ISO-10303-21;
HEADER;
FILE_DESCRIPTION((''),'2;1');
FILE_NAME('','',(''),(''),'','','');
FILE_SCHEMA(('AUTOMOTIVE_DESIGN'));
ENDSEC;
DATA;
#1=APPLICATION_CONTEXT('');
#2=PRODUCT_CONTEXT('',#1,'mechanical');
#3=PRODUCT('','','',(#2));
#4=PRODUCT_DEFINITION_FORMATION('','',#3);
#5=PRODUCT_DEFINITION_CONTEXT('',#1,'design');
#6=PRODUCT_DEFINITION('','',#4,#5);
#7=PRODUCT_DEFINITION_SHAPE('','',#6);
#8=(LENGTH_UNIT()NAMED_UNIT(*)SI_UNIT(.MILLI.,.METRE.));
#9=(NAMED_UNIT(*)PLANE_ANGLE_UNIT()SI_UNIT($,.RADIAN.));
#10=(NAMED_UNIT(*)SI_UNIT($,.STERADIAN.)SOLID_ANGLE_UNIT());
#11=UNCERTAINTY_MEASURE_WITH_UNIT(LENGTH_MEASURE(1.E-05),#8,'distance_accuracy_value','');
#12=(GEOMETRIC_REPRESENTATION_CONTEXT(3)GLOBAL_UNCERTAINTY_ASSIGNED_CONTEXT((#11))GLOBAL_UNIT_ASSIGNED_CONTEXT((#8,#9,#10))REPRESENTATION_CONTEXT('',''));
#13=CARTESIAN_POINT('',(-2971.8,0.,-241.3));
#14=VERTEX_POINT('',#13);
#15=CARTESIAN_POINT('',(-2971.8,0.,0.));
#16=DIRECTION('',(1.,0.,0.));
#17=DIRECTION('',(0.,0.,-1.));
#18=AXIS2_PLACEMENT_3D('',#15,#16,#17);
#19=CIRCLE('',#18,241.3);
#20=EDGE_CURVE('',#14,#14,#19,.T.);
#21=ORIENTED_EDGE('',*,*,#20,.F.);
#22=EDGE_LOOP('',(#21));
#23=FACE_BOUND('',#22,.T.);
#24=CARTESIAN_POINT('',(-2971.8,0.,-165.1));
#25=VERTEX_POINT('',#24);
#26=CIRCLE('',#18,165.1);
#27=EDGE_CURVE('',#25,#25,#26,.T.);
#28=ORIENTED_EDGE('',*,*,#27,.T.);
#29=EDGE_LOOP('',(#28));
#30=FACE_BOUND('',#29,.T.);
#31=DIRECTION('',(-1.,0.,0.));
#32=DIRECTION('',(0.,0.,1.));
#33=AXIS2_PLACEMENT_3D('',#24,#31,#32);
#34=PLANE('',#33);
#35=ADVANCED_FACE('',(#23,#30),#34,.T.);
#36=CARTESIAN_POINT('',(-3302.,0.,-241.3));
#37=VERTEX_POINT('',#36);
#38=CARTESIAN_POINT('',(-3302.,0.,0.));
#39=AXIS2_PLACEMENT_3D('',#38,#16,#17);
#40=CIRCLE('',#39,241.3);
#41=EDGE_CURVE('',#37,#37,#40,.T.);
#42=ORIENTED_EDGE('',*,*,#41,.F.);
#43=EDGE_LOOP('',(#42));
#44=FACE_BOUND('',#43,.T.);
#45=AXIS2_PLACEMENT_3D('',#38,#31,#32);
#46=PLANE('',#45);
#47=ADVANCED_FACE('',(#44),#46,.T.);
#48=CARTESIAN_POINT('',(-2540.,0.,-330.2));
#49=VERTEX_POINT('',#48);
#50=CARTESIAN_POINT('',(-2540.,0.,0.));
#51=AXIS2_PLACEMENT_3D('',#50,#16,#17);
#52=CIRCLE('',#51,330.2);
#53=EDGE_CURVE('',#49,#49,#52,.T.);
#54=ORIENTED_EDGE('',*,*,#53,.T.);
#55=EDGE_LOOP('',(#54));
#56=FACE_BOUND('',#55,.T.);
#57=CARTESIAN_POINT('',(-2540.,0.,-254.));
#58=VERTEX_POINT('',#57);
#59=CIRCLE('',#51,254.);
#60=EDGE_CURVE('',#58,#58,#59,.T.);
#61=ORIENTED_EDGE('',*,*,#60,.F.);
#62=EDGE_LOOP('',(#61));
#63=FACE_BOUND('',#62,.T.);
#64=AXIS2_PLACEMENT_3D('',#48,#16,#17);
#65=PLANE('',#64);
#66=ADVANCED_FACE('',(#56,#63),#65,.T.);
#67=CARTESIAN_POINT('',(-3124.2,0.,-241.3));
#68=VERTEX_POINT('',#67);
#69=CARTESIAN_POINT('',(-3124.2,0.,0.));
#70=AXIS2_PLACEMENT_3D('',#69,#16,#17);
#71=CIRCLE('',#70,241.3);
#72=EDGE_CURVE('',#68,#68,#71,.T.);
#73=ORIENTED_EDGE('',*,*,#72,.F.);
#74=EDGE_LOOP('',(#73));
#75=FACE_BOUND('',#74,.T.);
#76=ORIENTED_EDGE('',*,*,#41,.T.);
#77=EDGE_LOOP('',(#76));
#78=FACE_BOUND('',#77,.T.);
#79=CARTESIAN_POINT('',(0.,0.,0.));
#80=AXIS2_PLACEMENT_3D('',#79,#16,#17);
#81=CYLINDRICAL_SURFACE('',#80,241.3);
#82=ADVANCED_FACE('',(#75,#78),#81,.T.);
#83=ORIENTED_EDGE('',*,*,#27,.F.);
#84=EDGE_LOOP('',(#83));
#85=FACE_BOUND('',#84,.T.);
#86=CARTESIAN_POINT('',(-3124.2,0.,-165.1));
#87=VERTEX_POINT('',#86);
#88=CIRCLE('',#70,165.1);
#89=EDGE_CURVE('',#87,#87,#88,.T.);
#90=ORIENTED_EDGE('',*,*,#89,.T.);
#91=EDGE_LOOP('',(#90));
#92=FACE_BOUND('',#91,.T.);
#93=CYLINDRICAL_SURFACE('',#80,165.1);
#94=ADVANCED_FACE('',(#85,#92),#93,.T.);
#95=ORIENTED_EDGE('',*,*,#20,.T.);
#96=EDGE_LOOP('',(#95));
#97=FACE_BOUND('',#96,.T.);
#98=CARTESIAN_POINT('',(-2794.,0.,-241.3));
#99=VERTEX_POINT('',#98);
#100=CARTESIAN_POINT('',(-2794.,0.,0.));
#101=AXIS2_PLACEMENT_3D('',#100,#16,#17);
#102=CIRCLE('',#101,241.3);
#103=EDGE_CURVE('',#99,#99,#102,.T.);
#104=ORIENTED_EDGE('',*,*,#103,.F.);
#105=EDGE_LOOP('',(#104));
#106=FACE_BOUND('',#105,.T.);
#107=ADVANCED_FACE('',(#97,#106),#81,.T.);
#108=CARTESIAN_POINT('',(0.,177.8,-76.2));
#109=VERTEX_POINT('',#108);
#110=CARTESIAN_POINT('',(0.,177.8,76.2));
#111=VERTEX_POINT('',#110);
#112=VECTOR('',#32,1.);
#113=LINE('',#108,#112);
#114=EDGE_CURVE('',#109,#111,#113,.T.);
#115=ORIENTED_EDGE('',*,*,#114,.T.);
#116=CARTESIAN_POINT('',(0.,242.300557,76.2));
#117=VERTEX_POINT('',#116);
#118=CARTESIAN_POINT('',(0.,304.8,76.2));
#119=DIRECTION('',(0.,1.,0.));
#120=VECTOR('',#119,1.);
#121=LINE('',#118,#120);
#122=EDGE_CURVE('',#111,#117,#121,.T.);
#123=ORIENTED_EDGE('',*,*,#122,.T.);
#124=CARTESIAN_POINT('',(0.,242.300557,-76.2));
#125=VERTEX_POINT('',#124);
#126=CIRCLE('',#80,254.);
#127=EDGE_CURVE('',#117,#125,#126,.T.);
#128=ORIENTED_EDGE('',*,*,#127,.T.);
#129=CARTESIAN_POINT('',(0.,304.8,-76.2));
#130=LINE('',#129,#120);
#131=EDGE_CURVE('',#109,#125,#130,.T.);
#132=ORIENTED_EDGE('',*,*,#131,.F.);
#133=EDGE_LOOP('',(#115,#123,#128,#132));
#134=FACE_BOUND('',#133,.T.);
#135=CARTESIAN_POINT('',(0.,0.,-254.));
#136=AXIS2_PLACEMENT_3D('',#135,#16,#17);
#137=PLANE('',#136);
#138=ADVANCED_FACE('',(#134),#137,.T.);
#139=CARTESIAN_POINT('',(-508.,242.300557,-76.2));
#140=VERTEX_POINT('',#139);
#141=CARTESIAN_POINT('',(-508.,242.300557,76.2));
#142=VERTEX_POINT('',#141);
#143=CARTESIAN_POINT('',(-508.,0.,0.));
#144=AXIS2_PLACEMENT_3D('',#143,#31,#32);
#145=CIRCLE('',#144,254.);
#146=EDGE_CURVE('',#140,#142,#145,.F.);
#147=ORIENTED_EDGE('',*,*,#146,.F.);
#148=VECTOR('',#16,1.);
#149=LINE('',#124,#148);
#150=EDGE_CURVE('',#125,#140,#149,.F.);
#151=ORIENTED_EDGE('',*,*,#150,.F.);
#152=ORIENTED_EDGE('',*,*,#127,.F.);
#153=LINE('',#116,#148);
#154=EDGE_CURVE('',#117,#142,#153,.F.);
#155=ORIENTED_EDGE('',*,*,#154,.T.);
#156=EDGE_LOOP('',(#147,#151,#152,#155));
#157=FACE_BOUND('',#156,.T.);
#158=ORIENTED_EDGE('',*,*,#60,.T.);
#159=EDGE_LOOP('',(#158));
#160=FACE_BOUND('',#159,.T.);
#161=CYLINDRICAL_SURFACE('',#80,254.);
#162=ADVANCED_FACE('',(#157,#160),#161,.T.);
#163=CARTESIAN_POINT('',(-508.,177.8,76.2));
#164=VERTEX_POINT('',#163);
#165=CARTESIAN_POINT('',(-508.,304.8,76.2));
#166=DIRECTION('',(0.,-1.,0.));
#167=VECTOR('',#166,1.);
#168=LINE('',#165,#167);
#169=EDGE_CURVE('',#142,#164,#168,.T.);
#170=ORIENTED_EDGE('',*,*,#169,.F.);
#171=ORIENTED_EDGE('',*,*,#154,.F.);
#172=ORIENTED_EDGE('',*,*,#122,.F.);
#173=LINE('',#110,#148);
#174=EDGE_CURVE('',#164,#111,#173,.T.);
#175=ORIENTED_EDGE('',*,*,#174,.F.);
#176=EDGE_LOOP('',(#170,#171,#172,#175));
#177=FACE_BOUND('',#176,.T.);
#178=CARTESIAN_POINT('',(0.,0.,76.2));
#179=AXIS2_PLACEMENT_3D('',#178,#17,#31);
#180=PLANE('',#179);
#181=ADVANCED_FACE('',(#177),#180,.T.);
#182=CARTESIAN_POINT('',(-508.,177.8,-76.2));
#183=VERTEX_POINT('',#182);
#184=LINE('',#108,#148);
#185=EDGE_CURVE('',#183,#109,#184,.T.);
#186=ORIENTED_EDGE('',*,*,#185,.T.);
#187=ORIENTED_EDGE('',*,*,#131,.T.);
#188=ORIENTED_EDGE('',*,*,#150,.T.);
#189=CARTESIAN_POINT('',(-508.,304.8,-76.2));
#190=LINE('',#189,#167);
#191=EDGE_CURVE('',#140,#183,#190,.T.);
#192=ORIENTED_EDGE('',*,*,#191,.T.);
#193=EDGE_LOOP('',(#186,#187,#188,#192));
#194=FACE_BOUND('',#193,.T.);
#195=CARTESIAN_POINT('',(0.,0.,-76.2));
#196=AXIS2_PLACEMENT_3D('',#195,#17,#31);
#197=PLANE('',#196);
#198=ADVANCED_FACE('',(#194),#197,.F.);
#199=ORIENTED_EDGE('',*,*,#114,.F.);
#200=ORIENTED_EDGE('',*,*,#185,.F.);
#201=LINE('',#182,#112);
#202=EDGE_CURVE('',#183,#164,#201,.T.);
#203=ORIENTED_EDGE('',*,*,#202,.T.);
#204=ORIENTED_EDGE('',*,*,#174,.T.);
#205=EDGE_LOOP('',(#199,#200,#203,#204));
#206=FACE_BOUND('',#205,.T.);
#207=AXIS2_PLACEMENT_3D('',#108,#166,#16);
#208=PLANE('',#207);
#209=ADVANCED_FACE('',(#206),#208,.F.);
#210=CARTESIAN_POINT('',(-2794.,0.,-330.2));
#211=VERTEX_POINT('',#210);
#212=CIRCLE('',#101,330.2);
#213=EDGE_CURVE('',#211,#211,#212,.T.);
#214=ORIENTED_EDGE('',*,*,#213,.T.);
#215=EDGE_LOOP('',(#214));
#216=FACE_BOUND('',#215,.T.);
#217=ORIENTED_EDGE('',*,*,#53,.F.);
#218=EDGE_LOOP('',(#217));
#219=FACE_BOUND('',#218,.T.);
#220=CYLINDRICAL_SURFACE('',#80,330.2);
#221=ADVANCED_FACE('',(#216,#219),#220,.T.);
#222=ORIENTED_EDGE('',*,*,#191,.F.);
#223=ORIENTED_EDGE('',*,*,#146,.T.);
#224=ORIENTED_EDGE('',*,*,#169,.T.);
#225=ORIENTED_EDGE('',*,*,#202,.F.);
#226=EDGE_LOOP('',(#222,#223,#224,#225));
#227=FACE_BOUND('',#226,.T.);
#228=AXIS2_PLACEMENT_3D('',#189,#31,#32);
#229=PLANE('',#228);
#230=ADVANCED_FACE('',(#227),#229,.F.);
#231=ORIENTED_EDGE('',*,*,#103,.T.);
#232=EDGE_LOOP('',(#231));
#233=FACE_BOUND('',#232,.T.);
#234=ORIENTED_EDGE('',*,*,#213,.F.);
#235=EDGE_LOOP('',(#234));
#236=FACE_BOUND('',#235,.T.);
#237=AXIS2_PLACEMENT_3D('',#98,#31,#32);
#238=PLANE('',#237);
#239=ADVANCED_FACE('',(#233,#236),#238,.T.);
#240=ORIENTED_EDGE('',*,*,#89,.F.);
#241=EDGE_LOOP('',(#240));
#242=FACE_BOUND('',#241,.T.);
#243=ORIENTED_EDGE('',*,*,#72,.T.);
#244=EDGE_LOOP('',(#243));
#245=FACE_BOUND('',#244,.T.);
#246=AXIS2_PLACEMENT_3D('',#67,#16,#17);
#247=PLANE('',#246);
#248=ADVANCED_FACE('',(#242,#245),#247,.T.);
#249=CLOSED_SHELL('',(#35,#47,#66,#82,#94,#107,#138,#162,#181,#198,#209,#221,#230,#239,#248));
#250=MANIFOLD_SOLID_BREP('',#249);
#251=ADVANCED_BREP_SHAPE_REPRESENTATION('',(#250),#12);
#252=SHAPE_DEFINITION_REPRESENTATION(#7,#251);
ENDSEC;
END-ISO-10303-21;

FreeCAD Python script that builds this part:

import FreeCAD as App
import Part
import Sketcher
from FreeCAD import Vector
Q = App.Units.Quantity

doc = App.newDocument("Part")
body = doc.addObject("PartDesign::Body", "Body")

# Sketch on XZ plane
sketch1 = body.newObject("Sketcher::SketchObject", "Sketch")
sketch1.AttachmentSupport = (doc.getObject("XZ_Plane"), [""])
sketch1.MapMode = "FlatFace"
sketch1.addGeometry(Part.LineSegment(Vector(-3302, 0, 0), Vector(0, 0, 0)), False)
sketch1.addGeometry(Part.LineSegment(Vector(0, 0, 0), Vector(0, -254, 0)), False)
sketch1.addGeometry(Part.LineSegment(Vector(0, -254, 0), Vector(-2540, -254, 0)), False)
sketch1.addGeometry(Part.LineSegment(Vector(-2540, -254, 0), Vector(-2540, -330, 0)), False)
sketch1.addGeometry(Part.LineSegment(Vector(-2540, -330, 0), Vector(-2794, -330, 0)), False)
sketch1.addGeometry(Part.LineSegment(Vector(-2794, -330, 0), Vector(-2794, -241, 0)), False)
sketch1.addGeometry(Part.LineSegment(Vector(-2794, -241, 0), Vector(-2972, -241, 0)), False)
sketch1.addGeometry(Part.LineSegment(Vector(-2972, -241, 0), Vector(-2972, -165, 0)), False)
sketch1.addGeometry(Part.LineSegment(Vector(-2972, -165, 0), Vector(-3124, -165, 0)), False)
sketch1.addGeometry(Part.LineSegment(Vector(-3124, -165, 0), Vector(-3124, -241, 0)), False)
sketch1.addGeometry(Part.LineSegment(Vector(-3124, -241, 0), Vector(-3302, -241, 0)), False)
sketch1.addGeometry(Part.LineSegment(Vector(-3302, -241, 0), Vector(-3302, 0, 0)), False)
sketch1.addConstraint(Sketcher.Constraint("Coincident", 0, 2, 1, 1))
sketch1.addConstraint(Sketcher.Constraint("Coincident", 1, 2, 2, 1))
sketch1.addConstraint(Sketcher.Constraint("Coincident", 2, 2, 3, 1))
sketch1.addConstraint(Sketcher.Constraint("Coincident", 3, 2, 4, 1))
sketch1.addConstraint(Sketcher.Constraint("Coincident", 4, 2, 5, 1))
sketch1.addConstraint(Sketcher.Constraint("Coincident", 5, 2, 6, 1))
sketch1.addConstraint(Sketcher.Constraint("Coincident", 6, 2, 7, 1))
sketch1.addConstraint(Sketcher.Constraint("Coincident", 7, 2, 8, 1))
sketch1.addConstraint(Sketcher.Constraint("Coincident", 8, 2, 9, 1))
sketch1.addConstraint(Sketcher.Constraint("Coincident", 9, 2, 10, 1))
sketch1.addConstraint(Sketcher.Constraint("Coincident", 10, 2, 11, 1))
sketch1.addConstraint(Sketcher.Constraint("Coincident", 11, 2, 0, 1))
sketch1.addConstraint(Sketcher.Constraint("Horizontal", 0))
sketch1.addConstraint(Sketcher.Constraint("Vertical", 1))
sketch1.addConstraint(Sketcher.Constraint("Horizontal", 2))
sketch1.addConstraint(Sketcher.Constraint("Vertical", 3))
sketch1.addConstraint(Sketcher.Constraint("Horizontal", 4))
sketch1.addConstraint(Sketcher.Constraint("Vertical", 5))
sketch1.addConstraint(Sketcher.Constraint("Horizontal", 6))
sketch1.addConstraint(Sketcher.Constraint("Vertical", 7))
sketch1.addConstraint(Sketcher.Constraint("Horizontal", 8))
sketch1.addConstraint(Sketcher.Constraint("Vertical", 9))
sketch1.addConstraint(Sketcher.Constraint("Horizontal", 10))
sketch1.addConstraint(Sketcher.Constraint("Vertical", 11))
sketch1.addConstraint(Sketcher.Constraint("Coincident", 0, 2, -1, 1))
sketch1.addConstraint(Sketcher.Constraint("Horizontal", 6, 2, 9, 2))
sketch1.addConstraint(Sketcher.Constraint("Equal", 6, 10))
sketch1.addConstraint(Sketcher.Constraint("Equal", 4, 1))
sketch1.addConstraint(Sketcher.Constraint("Equal", 3, 7))
sketch1.addConstraint(Sketcher.Constraint("DistanceX", 0, 1, 0, 2, Q("130 in")))
sketch1.addConstraint(Sketcher.Constraint("DistanceX", 2, 2, 2, 1, Q("100 in")))
sketch1.addConstraint(Sketcher.Constraint("DistanceX", 4, 2, 4, 1, Q("10 in")))
sketch1.addConstraint(Sketcher.Constraint("DistanceX", 6, 2, 6, 1, Q("7 in")))
sketch1.addConstraint(Sketcher.Constraint("DistanceY", 3, 2, 3, 1, Q("3 in")))
sketch1.addConstraint(Sketcher.Constraint("DistanceY", 5, 1, 5, 2, Q("3.5 in")))
revolution = body.newObject("PartDesign::Revolution", "Revolution")
revolution.Profile = sketch1
revolution.ReferenceAxis = (sketch1, ["H_Axis"])
revolution.Angle = 360

# Sketch on XY plane
sketch2 = body.newObject("Sketcher::SketchObject", "Sketch001")
sketch2.AttachmentSupport = (doc.getObject("XY_Plane"), [""])
sketch2.MapMode = "FlatFace"
sketch2.addGeometry(Part.LineSegment(Vector(-508, 305, 0), Vector(-508, 178, 0)), False)
sketch2.addGeometry(Part.LineSegment(Vector(-508, 178, 0), Vector(0, 178, 0)), False)
sketch2.addGeometry(Part.LineSegment(Vector(0, 178, 0), Vector(0, 305, 0)), False)
sketch2.addGeometry(Part.LineSegment(Vector(0, 305, 0), Vector(-508, 305, 0)), False)
sketch2.addConstraint(Sketcher.Constraint("Coincident", 0, 2, 1, 1))
sketch2.addConstraint(Sketcher.Constraint("Coincident", 1, 2, 2, 1))
sketch2.addConstraint(Sketcher.Constraint("Coincident", 2, 2, 3, 1))
sketch2.addConstraint(Sketcher.Constraint("Coincident", 3, 2, 0, 1))
sketch2.addConstraint(Sketcher.Constraint("Vertical", 0))
sketch2.addConstraint(Sketcher.Constraint("Horizontal", 1))
sketch2.addConstraint(Sketcher.Constraint("Vertical", 2))
sketch2.addConstraint(Sketcher.Constraint("Horizontal", 3))
sketch2.addConstraint(Sketcher.Constraint("PointOnObject", 1, 2, -2))
sketch2.addConstraint(Sketcher.Constraint("DistanceX", 1, 1, 1, 2, Q("20 in")))
sketch2.addConstraint(Sketcher.Constraint("DistanceY", 0, 2, 0, 1, Q("5 in")))
sketch2.addConstraint(Sketcher.Constraint("DistanceY", -1, 1, 0, 2, Q("7 in")))
pocket1 = body.newObject("PartDesign::Pocket", "Pocket")
pocket1.Profile = sketch2
pocket1.Length = Q("6 in")
pocket1.Midplane = True

doc.recompute()
